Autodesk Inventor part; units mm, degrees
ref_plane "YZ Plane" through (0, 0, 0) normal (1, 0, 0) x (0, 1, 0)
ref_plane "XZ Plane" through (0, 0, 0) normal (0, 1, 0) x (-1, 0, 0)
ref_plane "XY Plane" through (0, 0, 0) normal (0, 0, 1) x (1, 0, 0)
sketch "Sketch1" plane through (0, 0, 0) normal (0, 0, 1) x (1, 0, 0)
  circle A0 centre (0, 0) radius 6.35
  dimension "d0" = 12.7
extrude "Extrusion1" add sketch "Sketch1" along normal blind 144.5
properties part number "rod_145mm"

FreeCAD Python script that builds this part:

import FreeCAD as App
import Part
import Sketcher

V = App.Vector

doc = App.newDocument("Part")
params = doc.addObject("Spreadsheet::Sheet", "Params")
for row, (alias, value) in enumerate([
    ("sketch1_diameter", "12.7 mm"),
    ("pad1_length", "144.5 mm"),
], start=1):
    params.set(f"A{row}", alias)
    params.set(f"B{row}", "=" + value)
    params.setAlias(f"B{row}", alias)

body = doc.addObject("PartDesign::Body", "Body")

# Sketch on XY plane
sketch1 = body.newObject("Sketcher::SketchObject", "Sketch")
sketch1.AttachmentSupport = (doc.getObject("XY_Plane"), [""])
sketch1.MapMode = "FlatFace"
sketch1.addGeometry(Part.Circle(V(0, 0, 0), V(0, 0, 1), 6), False)
sketch1.addConstraint([
    Sketcher.Constraint("Coincident", 0, 3, -1, 1),
    Sketcher.Constraint("Diameter", 0, 12.7),
])
sketch1.setExpression("Constraints[1]", "Params.sketch1_diameter")
pad1 = body.newObject("PartDesign::Pad", "Pad")
pad1.Profile = sketch1
pad1.setExpression("Length", "Params.pad1_length")

doc.recompute()
